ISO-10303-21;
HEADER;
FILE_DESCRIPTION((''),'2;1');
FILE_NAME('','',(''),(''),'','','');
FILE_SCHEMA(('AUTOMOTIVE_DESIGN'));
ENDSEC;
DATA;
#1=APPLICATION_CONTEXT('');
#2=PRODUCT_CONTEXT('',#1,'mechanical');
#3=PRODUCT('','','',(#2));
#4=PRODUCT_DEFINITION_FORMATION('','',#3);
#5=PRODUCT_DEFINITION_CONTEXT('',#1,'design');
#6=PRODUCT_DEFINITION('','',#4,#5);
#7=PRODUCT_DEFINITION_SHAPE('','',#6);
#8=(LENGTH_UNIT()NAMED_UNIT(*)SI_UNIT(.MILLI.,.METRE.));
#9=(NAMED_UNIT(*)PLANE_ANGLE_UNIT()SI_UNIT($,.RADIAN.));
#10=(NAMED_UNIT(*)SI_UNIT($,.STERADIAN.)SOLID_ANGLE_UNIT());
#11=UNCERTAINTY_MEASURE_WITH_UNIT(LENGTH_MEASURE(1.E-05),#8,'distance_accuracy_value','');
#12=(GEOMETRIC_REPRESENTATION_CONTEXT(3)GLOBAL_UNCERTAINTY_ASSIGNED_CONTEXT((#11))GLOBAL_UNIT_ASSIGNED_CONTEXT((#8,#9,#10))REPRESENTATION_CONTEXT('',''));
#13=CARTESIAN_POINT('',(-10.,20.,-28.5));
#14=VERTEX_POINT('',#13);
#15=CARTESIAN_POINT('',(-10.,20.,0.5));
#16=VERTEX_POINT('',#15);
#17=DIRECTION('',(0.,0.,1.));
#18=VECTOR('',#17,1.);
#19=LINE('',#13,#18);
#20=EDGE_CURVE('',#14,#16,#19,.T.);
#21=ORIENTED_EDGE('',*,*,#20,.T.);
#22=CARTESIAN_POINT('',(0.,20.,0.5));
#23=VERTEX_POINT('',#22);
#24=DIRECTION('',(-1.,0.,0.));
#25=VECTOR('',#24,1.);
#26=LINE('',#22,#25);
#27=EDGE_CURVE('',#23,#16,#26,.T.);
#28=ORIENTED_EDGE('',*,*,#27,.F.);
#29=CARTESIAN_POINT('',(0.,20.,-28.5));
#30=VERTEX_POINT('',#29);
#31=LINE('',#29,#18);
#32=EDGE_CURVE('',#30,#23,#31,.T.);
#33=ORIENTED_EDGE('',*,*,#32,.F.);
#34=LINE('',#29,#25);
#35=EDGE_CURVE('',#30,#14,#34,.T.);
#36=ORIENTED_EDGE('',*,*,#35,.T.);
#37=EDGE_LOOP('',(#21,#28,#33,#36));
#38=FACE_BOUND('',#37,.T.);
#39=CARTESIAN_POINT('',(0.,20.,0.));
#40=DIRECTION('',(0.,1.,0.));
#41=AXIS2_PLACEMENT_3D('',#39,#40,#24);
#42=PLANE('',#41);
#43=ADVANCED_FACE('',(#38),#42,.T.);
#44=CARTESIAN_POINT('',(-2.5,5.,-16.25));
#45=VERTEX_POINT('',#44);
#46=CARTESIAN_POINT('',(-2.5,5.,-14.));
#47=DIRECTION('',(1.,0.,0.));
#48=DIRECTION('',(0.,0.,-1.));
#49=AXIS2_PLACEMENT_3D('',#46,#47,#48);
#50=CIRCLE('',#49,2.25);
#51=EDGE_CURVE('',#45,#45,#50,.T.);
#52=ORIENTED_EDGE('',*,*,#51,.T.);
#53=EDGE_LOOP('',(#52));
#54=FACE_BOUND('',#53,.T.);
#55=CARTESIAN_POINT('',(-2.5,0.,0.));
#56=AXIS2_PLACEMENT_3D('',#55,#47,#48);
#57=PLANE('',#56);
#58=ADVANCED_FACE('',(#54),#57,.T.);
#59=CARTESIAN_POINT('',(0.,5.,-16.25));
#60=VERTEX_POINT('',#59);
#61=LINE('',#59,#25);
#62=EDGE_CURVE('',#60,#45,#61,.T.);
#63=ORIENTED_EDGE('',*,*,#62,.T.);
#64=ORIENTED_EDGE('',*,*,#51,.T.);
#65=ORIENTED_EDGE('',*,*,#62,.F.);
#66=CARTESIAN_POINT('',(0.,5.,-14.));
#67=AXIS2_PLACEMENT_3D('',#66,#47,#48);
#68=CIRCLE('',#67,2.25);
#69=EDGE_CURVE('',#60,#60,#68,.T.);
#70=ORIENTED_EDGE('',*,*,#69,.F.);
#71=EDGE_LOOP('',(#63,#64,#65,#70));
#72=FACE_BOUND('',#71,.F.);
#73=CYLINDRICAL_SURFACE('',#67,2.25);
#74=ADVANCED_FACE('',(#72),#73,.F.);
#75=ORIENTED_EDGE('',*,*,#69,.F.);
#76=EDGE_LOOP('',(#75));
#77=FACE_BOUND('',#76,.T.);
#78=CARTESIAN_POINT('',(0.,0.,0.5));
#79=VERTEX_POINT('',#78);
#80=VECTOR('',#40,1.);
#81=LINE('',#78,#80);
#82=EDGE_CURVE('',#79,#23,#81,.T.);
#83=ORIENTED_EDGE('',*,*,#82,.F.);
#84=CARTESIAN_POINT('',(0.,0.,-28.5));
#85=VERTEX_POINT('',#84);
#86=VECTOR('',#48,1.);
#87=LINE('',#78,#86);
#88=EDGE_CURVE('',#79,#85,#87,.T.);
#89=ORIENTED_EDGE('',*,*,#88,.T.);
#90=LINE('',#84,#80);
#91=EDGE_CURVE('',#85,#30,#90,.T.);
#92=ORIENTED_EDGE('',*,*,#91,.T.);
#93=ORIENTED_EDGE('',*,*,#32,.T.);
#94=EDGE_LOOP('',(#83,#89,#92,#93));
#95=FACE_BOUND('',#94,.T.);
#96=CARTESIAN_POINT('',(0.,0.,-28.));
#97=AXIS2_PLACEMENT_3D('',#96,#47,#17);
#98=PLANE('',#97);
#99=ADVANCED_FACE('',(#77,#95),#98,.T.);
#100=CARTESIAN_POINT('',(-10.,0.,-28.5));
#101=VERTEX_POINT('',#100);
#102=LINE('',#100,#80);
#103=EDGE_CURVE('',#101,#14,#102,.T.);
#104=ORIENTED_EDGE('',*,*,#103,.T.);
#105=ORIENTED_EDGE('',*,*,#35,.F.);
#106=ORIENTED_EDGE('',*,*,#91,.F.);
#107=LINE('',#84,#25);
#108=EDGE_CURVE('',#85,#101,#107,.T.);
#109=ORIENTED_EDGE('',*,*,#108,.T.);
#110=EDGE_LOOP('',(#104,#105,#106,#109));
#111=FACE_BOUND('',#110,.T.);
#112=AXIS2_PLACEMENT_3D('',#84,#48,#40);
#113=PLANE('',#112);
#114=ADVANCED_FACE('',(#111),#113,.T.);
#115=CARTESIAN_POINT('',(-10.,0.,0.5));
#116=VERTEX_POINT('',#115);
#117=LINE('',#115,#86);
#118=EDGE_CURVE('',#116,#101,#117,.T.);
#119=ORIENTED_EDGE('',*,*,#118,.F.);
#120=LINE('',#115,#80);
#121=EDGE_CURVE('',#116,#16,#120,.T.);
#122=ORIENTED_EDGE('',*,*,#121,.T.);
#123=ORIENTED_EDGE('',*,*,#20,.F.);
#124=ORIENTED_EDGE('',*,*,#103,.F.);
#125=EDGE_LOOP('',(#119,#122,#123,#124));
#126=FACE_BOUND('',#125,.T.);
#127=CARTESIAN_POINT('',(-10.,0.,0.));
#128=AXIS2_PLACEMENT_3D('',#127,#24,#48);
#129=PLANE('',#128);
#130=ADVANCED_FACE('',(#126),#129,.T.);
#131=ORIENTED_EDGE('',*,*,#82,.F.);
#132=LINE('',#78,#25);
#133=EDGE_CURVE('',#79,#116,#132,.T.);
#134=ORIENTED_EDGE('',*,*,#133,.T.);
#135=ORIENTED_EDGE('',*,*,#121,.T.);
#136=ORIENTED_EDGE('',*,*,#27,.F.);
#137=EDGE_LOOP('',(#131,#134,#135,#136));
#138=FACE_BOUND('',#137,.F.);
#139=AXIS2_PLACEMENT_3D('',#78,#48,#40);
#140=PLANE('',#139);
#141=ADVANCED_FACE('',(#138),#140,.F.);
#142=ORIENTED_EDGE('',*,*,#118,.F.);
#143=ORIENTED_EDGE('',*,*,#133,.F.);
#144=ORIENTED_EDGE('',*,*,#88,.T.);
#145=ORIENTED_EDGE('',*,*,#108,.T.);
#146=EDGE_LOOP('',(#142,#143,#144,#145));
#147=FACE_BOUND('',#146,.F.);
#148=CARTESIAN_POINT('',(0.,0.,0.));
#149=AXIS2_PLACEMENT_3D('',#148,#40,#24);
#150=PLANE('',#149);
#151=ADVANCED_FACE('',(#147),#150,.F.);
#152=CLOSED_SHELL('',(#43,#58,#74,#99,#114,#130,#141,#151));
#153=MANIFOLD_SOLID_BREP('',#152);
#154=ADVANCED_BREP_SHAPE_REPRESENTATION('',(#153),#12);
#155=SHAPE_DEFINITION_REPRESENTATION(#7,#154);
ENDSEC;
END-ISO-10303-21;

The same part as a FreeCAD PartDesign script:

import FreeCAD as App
import Part
import Sketcher
from FreeCAD import Vector

doc = App.newDocument("Part")
body = doc.addObject("PartDesign::Body", "Body")

# Sketch on XZ plane
sketch1 = body.newObject("Sketcher::SketchObject", "Sketch")
sketch1.AttachmentSupport = (doc.getObject("XZ_Plane"), [""])
sketch1.MapMode = "FlatFace"
sketch1.addGeometry(Part.LineSegment(Vector(-10, 0, 0), Vector(0, 0, 0)), False)
sketch1.addGeometry(Part.LineSegment(Vector(0, 0, 0), Vector(0, -28, 0)), False)
sketch1.addGeometry(Part.LineSegment(Vector(0, -28, 0), Vector(-10, -28, 0)), False)
sketch1.addGeometry(Part.LineSegment(Vector(-10, -28, 0), Vector(-10, 0, 0)), False)
sketch1.addConstraint(Sketcher.Constraint("Coincident", 0, 2, 1, 1))
sketch1.addConstraint(Sketcher.Constraint("Coincident", 1, 2, 2, 1))
sketch1.addConstraint(Sketcher.Constraint("Coincident", 2, 2, 3, 1))
sketch1.addConstraint(Sketcher.Constraint("Coincident", 3, 2, 0, 1))
sketch1.addConstraint(Sketcher.Constraint("Horizontal", 0))
sketch1.addConstraint(Sketcher.Constraint("Vertical", 1))
sketch1.addConstraint(Sketcher.Constraint("Horizontal", 2))
sketch1.addConstraint(Sketcher.Constraint("Vertical", 3))
sketch1.addConstraint(Sketcher.Constraint("Coincident", 0, 2, -1, 1))
sketch1.addConstraint(Sketcher.Constraint("DistanceX", 0, 1, 0, 2, 10.0))
sketch1.addConstraint(Sketcher.Constraint("DistanceY", 1, 2, 1, 1, 28.0))
pad1 = body.newObject("PartDesign::Pad", "Pad")
pad1.Profile = sketch1
pad1.Length = 20
pad1.Reversed = True

# Sketch on YZ plane
sketch2 = body.newObject("Sketcher::SketchObject", "Sketch001")
sketch2.AttachmentSupport = (doc.getObject("YZ_Plane"), [""])
sketch2.MapMode = "FlatFace"
sketch2.addGeometry(Part.Circle(Vector(5, -14, 0), Vector(0, 0, 1), 2.2), False)
sketch2.addConstraint(Sketcher.Constraint("Diameter", 0, 4.5))
sketch2.addConstraint(Sketcher.Constraint("DistanceX", -1, 1, 0, 3, 5.0))
sketch2.addConstraint(Sketcher.Constraint("DistanceY", 0, 3, -1, 1, 14.0))
pocket1 = body.newObject("PartDesign::Pocket", "Pocket")
pocket1.Profile = sketch2
pocket1.Length = 2.5

# Sketch on YZ plane
sketch3 = body.newObject("Sketcher::SketchObject", "Sketch002")
sketch3.AttachmentSupport = (doc.getObject("YZ_Plane"), [""])
sketch3.MapMode = "FlatFace"
sketch3.addGeometry(Part.LineSegment(Vector(0, 0.5, 0), Vector(0, 0, 0)), False)
sketch3.addGeometry(Part.LineSegment(Vector(0, 0, 0), Vector(20, 0, 0)), False)
sketch3.addGeometry(Part.LineSegment(Vector(20, 0, 0), Vector(20, 0.5, 0)), False)
sketch3.addGeometry(Part.LineSegment(Vector(20, 0.5, 0), Vector(0, 0.5, 0)), False)
sketch3.addGeometry(Part.LineSegment(Vector(20, -28, 0), Vector(0, -28, 0)), False)
sketch3.addGeometry(Part.LineSegment(Vector(0, -28, 0), Vector(0, -28.5, 0)), False)
sketch3.addGeometry(Part.LineSegment(Vector(0, -28.5, 0), Vector(20, -28.5, 0)), False)
sketch3.addGeometry(Part.LineSegment(Vector(20, -28.5, 0), Vector(20, -28, 0)), False)
sketch3.addConstraint(Sketcher.Constraint("Coincident", 0, 2, 1, 1))
sketch3.addConstraint(Sketcher.Constraint("Coincident", 1, 2, 2, 1))
sketch3.addConstraint(Sketcher.Constraint("Coincident", 2, 2, 3, 1))
sketch3.addConstraint(Sketcher.Constraint("Coincident", 3, 2, 0, 1))
sketch3.addConstraint(Sketcher.Constraint("Coincident", 4, 2, 5, 1))
sketch3.addConstraint(Sketcher.Constraint("Coincident", 5, 2, 6, 1))
sketch3.addConstraint(Sketcher.Constraint("Coincident", 6, 2, 7, 1))
sketch3.addConstraint(Sketcher.Constraint("Coincident", 7, 2, 4, 1))
sketch3.addConstraint(Sketcher.Constraint("Vertical", 0))
sketch3.addConstraint(Sketcher.Constraint("Horizontal", 1))
sketch3.addConstraint(Sketcher.Constraint("Vertical", 2))
sketch3.addConstraint(Sketcher.Constraint("Horizontal", 3))
sketch3.addConstraint(Sketcher.Constraint("Horizontal", 4))
sketch3.addConstraint(Sketcher.Constraint("Vertical", 5))
sketch3.addConstraint(Sketcher.Constraint("Horizontal", 6))
sketch3.addConstraint(Sketcher.Constraint("Vertical", 7))
sketch3.addConstraint(Sketcher.Constraint("Coincident", 0, 2, -1, 1))
sketch3.addConstraint(Sketcher.Constraint("PointOnObject", 4, 2, -2))
sketch3.addConstraint(Sketcher.Constraint("Vertical", 2, 2, 6, 2))
sketch3.addConstraint(Sketcher.Constraint("Equal", 2, 5))
sketch3.addConstraint(Sketcher.Constraint("DistanceY", 0, 2, 0, 1, 0.5))
sketch3.addConstraint(Sketcher.Constraint("DistanceX", 1, 1, 1, 2, 20.0))
sketch3.addConstraint(Sketcher.Constraint("DistanceY", 4, 2, -1, 1, 28.0))
pad2 = body.newObject("PartDesign::Pad", "Pad001")
pad2.Profile = sketch3
pad2.Length = 10
pad2.Reversed = True

doc.recompute()
